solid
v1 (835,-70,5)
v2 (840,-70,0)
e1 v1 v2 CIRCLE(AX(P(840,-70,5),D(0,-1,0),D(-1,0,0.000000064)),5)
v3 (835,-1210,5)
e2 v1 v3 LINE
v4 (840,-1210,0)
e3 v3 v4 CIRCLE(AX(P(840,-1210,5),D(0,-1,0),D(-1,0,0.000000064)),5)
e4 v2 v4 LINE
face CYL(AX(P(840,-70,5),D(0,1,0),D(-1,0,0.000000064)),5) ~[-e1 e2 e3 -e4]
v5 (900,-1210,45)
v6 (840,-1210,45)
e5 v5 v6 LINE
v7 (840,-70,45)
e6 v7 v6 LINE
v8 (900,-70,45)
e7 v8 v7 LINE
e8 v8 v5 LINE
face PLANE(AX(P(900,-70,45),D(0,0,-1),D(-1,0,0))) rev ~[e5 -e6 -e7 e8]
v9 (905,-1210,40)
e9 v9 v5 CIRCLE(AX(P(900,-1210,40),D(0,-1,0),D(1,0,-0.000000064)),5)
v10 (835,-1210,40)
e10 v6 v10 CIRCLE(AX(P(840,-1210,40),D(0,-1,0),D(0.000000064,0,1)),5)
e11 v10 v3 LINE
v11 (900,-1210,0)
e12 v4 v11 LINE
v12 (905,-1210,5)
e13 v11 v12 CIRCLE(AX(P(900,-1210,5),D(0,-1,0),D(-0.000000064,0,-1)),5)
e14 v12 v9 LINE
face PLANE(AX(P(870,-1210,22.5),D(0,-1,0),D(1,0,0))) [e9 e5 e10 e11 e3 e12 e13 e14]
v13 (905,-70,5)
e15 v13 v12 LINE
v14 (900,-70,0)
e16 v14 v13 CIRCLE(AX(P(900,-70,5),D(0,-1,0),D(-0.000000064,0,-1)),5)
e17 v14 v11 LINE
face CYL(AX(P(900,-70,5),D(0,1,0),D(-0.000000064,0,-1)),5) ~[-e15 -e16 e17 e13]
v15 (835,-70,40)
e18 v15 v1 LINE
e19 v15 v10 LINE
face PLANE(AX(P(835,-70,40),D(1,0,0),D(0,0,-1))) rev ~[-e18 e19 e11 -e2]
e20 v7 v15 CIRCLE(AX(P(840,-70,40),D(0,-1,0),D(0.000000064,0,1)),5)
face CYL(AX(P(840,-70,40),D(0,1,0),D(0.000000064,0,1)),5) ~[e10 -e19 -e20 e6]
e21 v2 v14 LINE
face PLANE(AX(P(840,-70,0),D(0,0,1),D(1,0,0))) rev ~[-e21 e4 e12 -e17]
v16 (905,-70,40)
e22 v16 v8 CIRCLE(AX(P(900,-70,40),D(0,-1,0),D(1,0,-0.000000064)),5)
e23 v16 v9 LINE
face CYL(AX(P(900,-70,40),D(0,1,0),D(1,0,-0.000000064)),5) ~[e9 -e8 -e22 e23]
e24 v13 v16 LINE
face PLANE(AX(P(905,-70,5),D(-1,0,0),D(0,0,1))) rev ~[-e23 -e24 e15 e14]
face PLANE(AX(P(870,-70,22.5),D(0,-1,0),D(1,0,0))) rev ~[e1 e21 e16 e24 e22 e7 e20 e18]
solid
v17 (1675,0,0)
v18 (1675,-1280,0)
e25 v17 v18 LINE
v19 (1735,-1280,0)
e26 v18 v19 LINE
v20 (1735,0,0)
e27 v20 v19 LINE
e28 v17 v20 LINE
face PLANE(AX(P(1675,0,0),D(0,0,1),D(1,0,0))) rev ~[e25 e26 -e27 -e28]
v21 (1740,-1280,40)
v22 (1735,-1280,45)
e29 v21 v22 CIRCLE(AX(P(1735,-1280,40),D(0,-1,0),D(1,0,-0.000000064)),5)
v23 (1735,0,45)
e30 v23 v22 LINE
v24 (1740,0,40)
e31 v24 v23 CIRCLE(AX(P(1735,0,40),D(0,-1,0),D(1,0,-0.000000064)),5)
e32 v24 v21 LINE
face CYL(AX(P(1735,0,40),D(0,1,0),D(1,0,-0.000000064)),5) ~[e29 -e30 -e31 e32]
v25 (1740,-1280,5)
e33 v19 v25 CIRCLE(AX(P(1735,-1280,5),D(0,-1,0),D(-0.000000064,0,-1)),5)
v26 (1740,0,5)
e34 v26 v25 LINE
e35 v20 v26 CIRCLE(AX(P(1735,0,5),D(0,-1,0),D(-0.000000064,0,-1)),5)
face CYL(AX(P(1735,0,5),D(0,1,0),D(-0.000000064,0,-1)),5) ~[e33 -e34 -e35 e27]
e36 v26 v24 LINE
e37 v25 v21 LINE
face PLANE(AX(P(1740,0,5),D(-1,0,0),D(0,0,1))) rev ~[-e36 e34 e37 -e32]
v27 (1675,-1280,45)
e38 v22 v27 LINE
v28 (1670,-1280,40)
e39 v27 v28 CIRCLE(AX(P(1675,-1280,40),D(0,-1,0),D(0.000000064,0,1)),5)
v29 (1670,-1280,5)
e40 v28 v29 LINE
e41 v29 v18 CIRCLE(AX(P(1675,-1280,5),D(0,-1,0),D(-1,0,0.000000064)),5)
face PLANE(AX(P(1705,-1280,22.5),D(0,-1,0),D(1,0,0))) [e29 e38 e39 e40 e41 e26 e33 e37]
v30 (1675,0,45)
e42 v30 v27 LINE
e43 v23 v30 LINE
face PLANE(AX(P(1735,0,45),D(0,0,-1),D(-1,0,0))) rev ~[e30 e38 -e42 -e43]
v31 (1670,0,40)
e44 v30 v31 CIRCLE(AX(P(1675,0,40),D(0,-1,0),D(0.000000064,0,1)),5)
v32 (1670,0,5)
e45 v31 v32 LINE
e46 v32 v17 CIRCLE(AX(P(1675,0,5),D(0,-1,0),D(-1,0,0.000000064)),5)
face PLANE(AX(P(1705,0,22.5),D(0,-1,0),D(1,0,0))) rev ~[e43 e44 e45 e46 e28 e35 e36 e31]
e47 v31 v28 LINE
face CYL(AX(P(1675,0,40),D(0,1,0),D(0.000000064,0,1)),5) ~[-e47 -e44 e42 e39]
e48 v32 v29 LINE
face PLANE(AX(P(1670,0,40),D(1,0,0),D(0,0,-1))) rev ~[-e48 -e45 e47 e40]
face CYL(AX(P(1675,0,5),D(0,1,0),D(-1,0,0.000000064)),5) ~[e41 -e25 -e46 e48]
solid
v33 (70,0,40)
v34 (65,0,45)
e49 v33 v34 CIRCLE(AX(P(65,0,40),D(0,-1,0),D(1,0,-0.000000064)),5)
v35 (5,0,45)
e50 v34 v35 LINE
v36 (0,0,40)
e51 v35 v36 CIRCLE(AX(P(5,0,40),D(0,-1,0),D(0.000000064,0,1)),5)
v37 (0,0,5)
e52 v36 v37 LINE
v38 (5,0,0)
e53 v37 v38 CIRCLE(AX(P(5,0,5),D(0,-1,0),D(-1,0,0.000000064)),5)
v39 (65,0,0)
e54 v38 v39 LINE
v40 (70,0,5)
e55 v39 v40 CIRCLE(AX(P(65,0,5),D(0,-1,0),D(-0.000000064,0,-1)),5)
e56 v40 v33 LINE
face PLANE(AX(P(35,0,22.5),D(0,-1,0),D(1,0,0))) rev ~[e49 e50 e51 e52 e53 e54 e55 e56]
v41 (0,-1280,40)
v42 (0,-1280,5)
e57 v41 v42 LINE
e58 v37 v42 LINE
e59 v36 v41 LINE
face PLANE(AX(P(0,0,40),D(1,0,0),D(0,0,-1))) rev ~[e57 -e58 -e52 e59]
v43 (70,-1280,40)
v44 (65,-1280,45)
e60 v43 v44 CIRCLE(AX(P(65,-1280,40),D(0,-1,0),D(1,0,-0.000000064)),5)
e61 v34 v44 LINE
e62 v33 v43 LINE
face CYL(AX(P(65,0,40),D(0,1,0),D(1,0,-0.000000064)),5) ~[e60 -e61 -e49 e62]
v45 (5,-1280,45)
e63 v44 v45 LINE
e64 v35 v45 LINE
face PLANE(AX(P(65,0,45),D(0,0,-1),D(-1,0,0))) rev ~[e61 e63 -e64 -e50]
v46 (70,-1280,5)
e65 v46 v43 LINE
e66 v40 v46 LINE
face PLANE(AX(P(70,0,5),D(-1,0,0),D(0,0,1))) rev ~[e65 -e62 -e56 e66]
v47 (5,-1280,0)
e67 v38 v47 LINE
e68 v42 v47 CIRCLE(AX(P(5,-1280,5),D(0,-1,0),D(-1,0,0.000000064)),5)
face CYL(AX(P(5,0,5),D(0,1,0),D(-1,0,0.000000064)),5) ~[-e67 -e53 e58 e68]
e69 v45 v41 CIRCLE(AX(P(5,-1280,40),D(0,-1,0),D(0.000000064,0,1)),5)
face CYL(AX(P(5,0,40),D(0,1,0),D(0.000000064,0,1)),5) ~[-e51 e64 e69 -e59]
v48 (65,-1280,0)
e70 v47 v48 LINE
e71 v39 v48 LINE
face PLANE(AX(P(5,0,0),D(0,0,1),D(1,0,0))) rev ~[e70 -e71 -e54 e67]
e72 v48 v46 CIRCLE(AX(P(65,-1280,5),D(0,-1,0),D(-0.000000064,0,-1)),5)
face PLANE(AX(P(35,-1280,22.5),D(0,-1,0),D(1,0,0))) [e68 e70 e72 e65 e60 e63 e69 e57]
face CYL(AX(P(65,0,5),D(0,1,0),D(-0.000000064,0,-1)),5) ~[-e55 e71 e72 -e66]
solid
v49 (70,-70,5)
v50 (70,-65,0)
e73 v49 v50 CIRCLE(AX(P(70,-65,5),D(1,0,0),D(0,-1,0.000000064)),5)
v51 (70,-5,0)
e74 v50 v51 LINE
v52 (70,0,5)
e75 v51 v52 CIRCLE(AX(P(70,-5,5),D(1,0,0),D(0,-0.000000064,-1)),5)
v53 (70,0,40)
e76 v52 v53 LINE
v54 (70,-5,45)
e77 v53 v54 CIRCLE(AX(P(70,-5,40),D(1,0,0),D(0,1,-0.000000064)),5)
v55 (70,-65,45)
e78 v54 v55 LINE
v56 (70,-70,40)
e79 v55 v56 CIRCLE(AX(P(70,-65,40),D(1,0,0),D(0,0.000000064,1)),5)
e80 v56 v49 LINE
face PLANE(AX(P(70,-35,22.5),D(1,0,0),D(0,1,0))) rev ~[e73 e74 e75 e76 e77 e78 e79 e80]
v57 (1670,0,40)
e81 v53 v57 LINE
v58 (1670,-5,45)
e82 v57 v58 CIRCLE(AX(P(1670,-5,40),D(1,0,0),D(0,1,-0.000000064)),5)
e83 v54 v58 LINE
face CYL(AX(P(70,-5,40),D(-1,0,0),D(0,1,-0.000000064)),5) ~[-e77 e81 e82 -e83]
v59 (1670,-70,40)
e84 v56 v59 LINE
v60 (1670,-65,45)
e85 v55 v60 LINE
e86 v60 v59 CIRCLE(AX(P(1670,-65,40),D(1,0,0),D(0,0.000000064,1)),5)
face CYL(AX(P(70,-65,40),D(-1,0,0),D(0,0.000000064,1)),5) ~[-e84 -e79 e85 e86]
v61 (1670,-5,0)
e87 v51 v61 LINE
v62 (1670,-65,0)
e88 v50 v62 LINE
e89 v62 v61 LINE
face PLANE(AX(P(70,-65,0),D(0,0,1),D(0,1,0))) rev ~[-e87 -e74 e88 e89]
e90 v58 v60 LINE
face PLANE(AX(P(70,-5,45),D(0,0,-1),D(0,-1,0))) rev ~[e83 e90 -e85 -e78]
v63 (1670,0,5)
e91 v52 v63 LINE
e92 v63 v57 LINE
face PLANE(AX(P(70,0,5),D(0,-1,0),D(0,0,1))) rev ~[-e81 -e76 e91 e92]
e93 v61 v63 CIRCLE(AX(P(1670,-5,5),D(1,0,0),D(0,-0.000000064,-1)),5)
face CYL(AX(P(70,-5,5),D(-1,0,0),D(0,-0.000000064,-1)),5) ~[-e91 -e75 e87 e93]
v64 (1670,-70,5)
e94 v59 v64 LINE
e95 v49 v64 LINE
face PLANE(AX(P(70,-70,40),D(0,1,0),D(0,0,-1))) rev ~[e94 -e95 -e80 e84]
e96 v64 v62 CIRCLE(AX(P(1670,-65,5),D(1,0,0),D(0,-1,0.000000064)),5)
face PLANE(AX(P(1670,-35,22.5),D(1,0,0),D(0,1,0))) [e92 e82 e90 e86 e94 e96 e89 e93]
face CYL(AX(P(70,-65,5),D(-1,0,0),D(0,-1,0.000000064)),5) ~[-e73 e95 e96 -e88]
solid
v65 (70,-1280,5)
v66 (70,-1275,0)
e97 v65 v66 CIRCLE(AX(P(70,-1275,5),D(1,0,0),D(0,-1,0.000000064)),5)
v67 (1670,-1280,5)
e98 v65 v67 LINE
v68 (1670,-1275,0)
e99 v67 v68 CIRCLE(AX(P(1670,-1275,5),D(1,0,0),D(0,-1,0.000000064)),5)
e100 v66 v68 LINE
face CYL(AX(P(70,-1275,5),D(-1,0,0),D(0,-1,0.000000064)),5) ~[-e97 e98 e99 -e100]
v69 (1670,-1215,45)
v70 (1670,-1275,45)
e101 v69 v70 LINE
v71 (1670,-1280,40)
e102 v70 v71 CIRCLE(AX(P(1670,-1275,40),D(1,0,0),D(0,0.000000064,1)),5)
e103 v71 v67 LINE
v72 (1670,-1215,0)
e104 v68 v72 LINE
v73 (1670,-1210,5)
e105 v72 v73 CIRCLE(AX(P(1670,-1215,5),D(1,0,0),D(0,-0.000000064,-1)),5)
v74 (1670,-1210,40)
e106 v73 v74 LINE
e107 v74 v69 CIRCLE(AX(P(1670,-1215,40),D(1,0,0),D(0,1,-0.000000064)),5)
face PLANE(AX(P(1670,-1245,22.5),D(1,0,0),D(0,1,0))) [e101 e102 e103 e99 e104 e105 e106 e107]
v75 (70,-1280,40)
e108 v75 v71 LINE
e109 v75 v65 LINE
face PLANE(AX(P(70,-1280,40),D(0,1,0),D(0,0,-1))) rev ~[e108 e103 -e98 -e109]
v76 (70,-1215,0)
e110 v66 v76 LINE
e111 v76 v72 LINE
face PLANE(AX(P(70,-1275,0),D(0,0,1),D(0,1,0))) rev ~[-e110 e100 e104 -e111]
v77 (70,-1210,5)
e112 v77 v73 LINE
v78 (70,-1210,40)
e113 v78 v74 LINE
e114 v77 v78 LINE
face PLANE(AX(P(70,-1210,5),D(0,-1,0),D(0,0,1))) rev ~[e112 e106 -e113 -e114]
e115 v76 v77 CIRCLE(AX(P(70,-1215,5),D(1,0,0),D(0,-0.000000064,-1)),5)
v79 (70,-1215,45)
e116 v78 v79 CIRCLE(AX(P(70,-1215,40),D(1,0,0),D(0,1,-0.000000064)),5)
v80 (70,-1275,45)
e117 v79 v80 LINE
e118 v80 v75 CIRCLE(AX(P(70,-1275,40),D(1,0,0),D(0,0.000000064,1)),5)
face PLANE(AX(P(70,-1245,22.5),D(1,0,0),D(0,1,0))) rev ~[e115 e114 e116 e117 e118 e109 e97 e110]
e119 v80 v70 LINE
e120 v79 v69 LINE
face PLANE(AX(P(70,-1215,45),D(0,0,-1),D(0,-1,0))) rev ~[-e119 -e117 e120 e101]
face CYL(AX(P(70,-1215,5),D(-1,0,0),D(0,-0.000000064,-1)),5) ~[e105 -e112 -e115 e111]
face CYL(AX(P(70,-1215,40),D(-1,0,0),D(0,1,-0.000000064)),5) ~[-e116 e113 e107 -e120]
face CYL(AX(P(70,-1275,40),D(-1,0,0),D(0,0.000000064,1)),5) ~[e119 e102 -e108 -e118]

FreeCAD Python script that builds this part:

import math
import FreeCAD as App
import Part
import Sketcher

V = App.Vector
Q = App.Units.Quantity

doc = App.newDocument("Part")
body = doc.addObject("PartDesign::Body", "Body")
body.AllowCompound = True

sketch1 = body.newObject("Sketcher::SketchObject", "Sketch")
sketch1.AttachmentSupport = (doc.getObject("XZ_Plane"), [""])
sketch1.MapMode = "FlatFace"
sketch1.addGeometry(Part.ArcOfCircle(Part.Circle(V(5, 5, 0), V(0, 0, 1), 5), math.radians(180), math.radians(270)), False)
sketch1.addGeometry(Part.LineSegment(V(5, 0, 0), V(65, 0, 0)), False)
sketch1.addGeometry(Part.ArcOfCircle(Part.Circle(V(65, 5, 0), V(0, 0, 1), 5), math.radians(-90), math.radians(0)), False)
sketch1.addGeometry(Part.LineSegment(V(70, 5, 0), V(70, 40, 0)), False)
sketch1.addGeometry(Part.ArcOfCircle(Part.Circle(V(65, 40, 0), V(0, 0, 1), 5), math.radians(0), math.radians(90)), False)
sketch1.addGeometry(Part.LineSegment(V(65, 45, 0), V(5, 45, 0)), False)
sketch1.addGeometry(Part.ArcOfCircle(Part.Circle(V(5, 40, 0), V(0, 0, 1), 5), math.radians(90), math.radians(180)), False)
sketch1.addGeometry(Part.LineSegment(V(0, 40, 0), V(0, 5, 0)), False)
sketch1.addGeometry(Part.ArcOfCircle(Part.Circle(V(1675, 5, 0), V(0, 0, 1), 5), math.radians(180), math.radians(270)), False)
sketch1.addGeometry(Part.LineSegment(V(1675, 0, 0), V(1735, 0, 0)), False)
sketch1.addGeometry(Part.ArcOfCircle(Part.Circle(V(1735, 5, 0), V(0, 0, 1), 5), math.radians(-90), math.radians(0)), False)
sketch1.addGeometry(Part.LineSegment(V(1740, 5, 0), V(1740, 40, 0)), False)
sketch1.addGeometry(Part.ArcOfCircle(Part.Circle(V(1735, 40, 0), V(0, 0, 1), 5), math.radians(0), math.radians(90)), False)
sketch1.addGeometry(Part.LineSegment(V(1735, 45, 0), V(1675, 45, 0)), False)
sketch1.addGeometry(Part.ArcOfCircle(Part.Circle(V(1675, 40, 0), V(0, 0, 1), 5), math.radians(90), math.radians(180)), False)
sketch1.addGeometry(Part.LineSegment(V(1670, 40, 0), V(1670, 5, 0)), False)
sketch1.addConstraint(Sketcher.Constraint("Tangent", 0, 2, 1, 1))
sketch1.addConstraint(Sketcher.Constraint("Tangent", 1, 2, 2, 1))
sketch1.addConstraint(Sketcher.Constraint("Tangent", 2, 2, 3, 1))
sketch1.addConstraint(Sketcher.Constraint("Tangent", 3, 2, 4, 1))
sketch1.addConstraint(Sketcher.Constraint("Tangent", 4, 2, 5, 1))
sketch1.addConstraint(Sketcher.Constraint("Tangent", 5, 2, 6, 1))
sketch1.addConstraint(Sketcher.Constraint("Tangent", 6, 2, 7, 1))
sketch1.addConstraint(Sketcher.Constraint("Tangent", 7, 2, 0, 1))
sketch1.addConstraint(Sketcher.Constraint("Tangent", 8, 2, 9, 1))
sketch1.addConstraint(Sketcher.Constraint("Tangent", 9, 2, 10, 1))
sketch1.addConstraint(Sketcher.Constraint("Tangent", 10, 2, 11, 1))
sketch1.addConstraint(Sketcher.Constraint("Tangent", 11, 2, 12, 1))
sketch1.addConstraint(Sketcher.Constraint("Tangent", 12, 2, 13, 1))
sketch1.addConstraint(Sketcher.Constraint("Tangent", 13, 2, 14, 1))
sketch1.addConstraint(Sketcher.Constraint("Tangent", 14, 2, 15, 1))
sketch1.addConstraint(Sketcher.Constraint("Tangent", 15, 2, 8, 1))
sketch1.addConstraint(Sketcher.Constraint("Horizontal", 1))
sketch1.addConstraint(Sketcher.Constraint("Vertical", 3))
sketch1.addConstraint(Sketcher.Constraint("Horizontal", 5))
sketch1.addConstraint(Sketcher.Constraint("Vertical", 7))
sketch1.addConstraint(Sketcher.Constraint("Horizontal", 9))
sketch1.addConstraint(Sketcher.Constraint("Vertical", 11))
sketch1.addConstraint(Sketcher.Constraint("Horizontal", 13))
sketch1.addConstraint(Sketcher.Constraint("Vertical", 15))
sketch1.addConstraint(Sketcher.Constraint("Equal", 0, 2))
sketch1.addConstraint(Sketcher.Constraint("Equal", 2, 4))
sketch1.addConstraint(Sketcher.Constraint("Equal", 4, 6))
sketch1.addConstraint(Sketcher.Constraint("Equal", 6, 8))
sketch1.addConstraint(Sketcher.Constraint("Equal", 8, 10))
sketch1.addConstraint(Sketcher.Constraint("Equal", 10, 12))
sketch1.addConstraint(Sketcher.Constraint("Equal", 12, 14))
sketch1.addConstraint(Sketcher.Constraint("PointOnObject", 0, 2, -1))
sketch1.addConstraint(Sketcher.Constraint("PointOnObject", 6, 2, -2))
sketch1.addConstraint(Sketcher.Constraint("PointOnObject", 8, 2, -1))
sketch1.addConstraint(Sketcher.Constraint("Horizontal", 6, 3, 12, 3))
sketch1.addConstraint(Sketcher.Constraint("Equal", 5, 9))
sketch1.addConstraint(Sketcher.Constraint("Radius", 0, Q("5 mm")))
sketch1.addConstraint(Sketcher.Constraint("DistanceX", 1, 1, 1, 2, Q("60 mm")))
sketch1.addConstraint(Sketcher.Constraint("DistanceY", 3, 1, 3, 2, Q("35 mm")))
sketch1.addConstraint(Sketcher.Constraint("DistanceX", -1, 1, 8, 3, Q("1675 mm")))
pad1 = body.newObject("PartDesign::Pad", "Pad")
pad1.Profile = sketch1
pad1.Length = 1280
body2 = doc.addObject("PartDesign::Body", "Body001")
body2.AllowCompound = True

sketch2 = body2.newObject("Sketcher::SketchObject", "Sketch001")
sketch2.AttachmentSupport = (doc.getObject("YZ_Plane001"), [""])
sketch2.MapMode = "FlatFace"
sketch2.AttachmentOffset = App.Placement(V(0, 0, 70), App.Rotation())
sketch2.addGeometry(Part.LineSegment(V(-1215, 45, 0), V(-1275, 45, 0)), False)
sketch2.addGeometry(Part.ArcOfCircle(Part.Circle(V(-1275, 40, 0), V(0, 0, 1), 5), math.radians(90), math.radians(180)), False)
sketch2.addGeometry(Part.LineSegment(V(-1280, 40, 0), V(-1280, 5, 0)), False)
sketch2.addGeometry(Part.ArcOfCircle(Part.Circle(V(-1275, 5, 0), V(0, 0, 1), 5), math.radians(180), math.radians(270)), False)
sketch2.addGeometry(Part.LineSegment(V(-1275, 0, 0), V(-1215, 0, 0)), False)
sketch2.addGeometry(Part.ArcOfCircle(Part.Circle(V(-1215, 5, 0), V(0, 0, 1), 5), math.radians(-90), math.radians(0)), False)
sketch2.addGeometry(Part.LineSegment(V(-1210, 5, 0), V(-1210, 40, 0)), False)
sketch2.addGeometry(Part.ArcOfCircle(Part.Circle(V(-1215, 40, 0), V(0, 0, 1), 5), math.radians(0), math.radians(90)), False)
sketch2.addGeometry(Part.LineSegment(V(-65, 0, 0), V(-5, 0, 0)), False)
sketch2.addGeometry(Part.ArcOfCircle(Part.Circle(V(-5, 5, 0), V(0, 0, 1), 5), math.radians(-90), math.radians(0)), False)
sketch2.addGeometry(Part.LineSegment(V(0, 5, 0), V(0, 40, 0)), False)
sketch2.addGeometry(Part.ArcOfCircle(Part.Circle(V(-5, 40, 0), V(0, 0, 1), 5), math.radians(0), math.radians(90)), False)
sketch2.addGeometry(Part.LineSegment(V(-5, 45, 0), V(-65, 45, 0)), False)
sketch2.addGeometry(Part.ArcOfCircle(Part.Circle(V(-65, 40, 0), V(0, 0, 1), 5), math.radians(90), math.radians(180)), False)
sketch2.addGeometry(Part.LineSegment(V(-70, 40, 0), V(-70, 5, 0)), False)
sketch2.addGeometry(Part.ArcOfCircle(Part.Circle(V(-65, 5, 0), V(0, 0, 1), 5), math.radians(180), math.radians(270)), False)
sketch2.addConstraint(Sketcher.Constraint("Tangent", 0, 2, 1, 1))
sketch2.addConstraint(Sketcher.Constraint("Tangent", 1, 2, 2, 1))
sketch2.addConstraint(Sketcher.Constraint("Tangent", 2, 2, 3, 1))
sketch2.addConstraint(Sketcher.Constraint("Tangent", 3, 2, 4, 1))
sketch2.addConstraint(Sketcher.Constraint("Tangent", 4, 2, 5, 1))
sketch2.addConstraint(Sketcher.Constraint("Tangent", 5, 2, 6, 1))
sketch2.addConstraint(Sketcher.Constraint("Tangent", 6, 2, 7, 1))
sketch2.addConstraint(Sketcher.Constraint("Tangent", 7, 2, 0, 1))
sketch2.addConstraint(Sketcher.Constraint("Tangent", 8, 2, 9, 1))
sketch2.addConstraint(Sketcher.Constraint("Tangent", 9, 2, 10, 1))
sketch2.addConstraint(Sketcher.Constraint("Tangent", 10, 2, 11, 1))
sketch2.addConstraint(Sketcher.Constraint("Tangent", 11, 2, 12, 1))
sketch2.addConstraint(Sketcher.Constraint("Tangent", 12, 2, 13, 1))
sketch2.addConstraint(Sketcher.Constraint("Tangent", 13, 2, 14, 1))
sketch2.addConstraint(Sketcher.Constraint("Tangent", 14, 2, 15, 1))
sketch2.addConstraint(Sketcher.Constraint("Tangent", 15, 2, 8, 1))
sketch2.addConstraint(Sketcher.Constraint("Horizontal", 0))
sketch2.addConstraint(Sketcher.Constraint("Vertical", 2))
sketch2.addConstraint(Sketcher.Constraint("Horizontal", 4))
sketch2.addConstraint(Sketcher.Constraint("Vertical", 6))
sketch2.addConstraint(Sketcher.Constraint("Horizontal", 8))
sketch2.addConstraint(Sketcher.Constraint("Vertical", 10))
sketch2.addConstraint(Sketcher.Constraint("Horizontal", 12))
sketch2.addConstraint(Sketcher.Constraint("Vertical", 14))
sketch2.addConstraint(Sketcher.Constraint("Equal", 1, 3))
sketch2.addConstraint(Sketcher.Constraint("Equal", 3, 5))
sketch2.addConstraint(Sketcher.Constraint("Equal", 5, 7))
sketch2.addConstraint(Sketcher.Constraint("Equal", 7, 9))
sketch2.addConstraint(Sketcher.Constraint("Equal", 9, 11))
sketch2.addConstraint(Sketcher.Constraint("Equal", 11, 13))
sketch2.addConstraint(Sketcher.Constraint("Equal", 13, 15))
sketch2.addConstraint(Sketcher.Constraint("PointOnObject", 3, 2, -1))
sketch2.addConstraint(Sketcher.Constraint("PointOnObject", 8, 2, -1))
sketch2.addConstraint(Sketcher.Constraint("PointOnObject", 9, 2, -2))
sketch2.addConstraint(Sketcher.Constraint("Horizontal", 7, 3, 11, 3))
sketch2.addConstraint(Sketcher.Constraint("Equal", 4, 8))
sketch2.addConstraint(Sketcher.Constraint("Radius", 1, Q("5 mm")))
sketch2.addConstraint(Sketcher.Constraint("DistanceX", 0, 2, 0, 1, Q("60 mm")))
sketch2.addConstraint(Sketcher.Constraint("DistanceY", 2, 2, 2, 1, Q("35 mm")))
sketch2.addConstraint(Sketcher.Constraint("DistanceX", 1, 3, -1, 1, Q("1275 mm")))
pad2 = body2.newObject("PartDesign::Pad", "Pad001")
pad2.Profile = sketch2
pad2.Length = 1600
body3 = doc.addObject("PartDesign::Body", "Body002")

sketch3 = body3.newObject("Sketcher::SketchObject", "Sketch002")
sketch3.AttachmentSupport = (doc.getObject("XZ_Plane002"), [""])
sketch3.MapMode = "FlatFace"
sketch3.AttachmentOffset = App.Placement(V(0, 0, 70), App.Rotation())
sketch3.addGeometry(Part.ArcOfCircle(Part.Circle(V(840, 5, 0), V(0, 0, 1), 5), math.radians(180), math.radians(270)), False)
sketch3.addGeometry(Part.LineSegment(V(840, 0, 0), V(900, 0, 0)), False)
sketch3.addGeometry(Part.ArcOfCircle(Part.Circle(V(900, 5, 0), V(0, 0, 1), 5), math.radians(-90), math.radians(0)), False)
sketch3.addGeometry(Part.LineSegment(V(905, 5, 0), V(905, 40, 0)), False)
sketch3.addGeometry(Part.ArcOfCircle(Part.Circle(V(900, 40, 0), V(0, 0, 1), 5), math.radians(0), math.radians(90)), False)
sketch3.addGeometry(Part.LineSegment(V(900, 45, 0), V(840, 45, 0)), False)
sketch3.addGeometry(Part.ArcOfCircle(Part.Circle(V(840, 40, 0), V(0, 0, 1), 5), math.radians(90), math.radians(180)), False)
sketch3.addGeometry(Part.LineSegment(V(835, 40, 0), V(835, 5, 0)), False)
sketch3.addConstraint(Sketcher.Constraint("Tangent", 0, 2, 1, 1))
sketch3.addConstraint(Sketcher.Constraint("Tangent", 1, 2, 2, 1))
sketch3.addConstraint(Sketcher.Constraint("Tangent", 2, 2, 3, 1))
sketch3.addConstraint(Sketcher.Constraint("Tangent", 3, 2, 4, 1))
sketch3.addConstraint(Sketcher.Constraint("Tangent", 4, 2, 5, 1))
sketch3.addConstraint(Sketcher.Constraint("Tangent", 5, 2, 6, 1))
sketch3.addConstraint(Sketcher.Constraint("Tangent", 6, 2, 7, 1))
sketch3.addConstraint(Sketcher.Constraint("Tangent", 7, 2, 0, 1))
sketch3.addConstraint(Sketcher.Constraint("Horizontal", 1))
sketch3.addConstraint(Sketcher.Constraint("Vertical", 3))
sketch3.addConstraint(Sketcher.Constraint("Horizontal", 5))
sketch3.addConstraint(Sketcher.Constraint("Vertical", 7))
sketch3.addConstraint(Sketcher.Constraint("Equal", 0, 2))
sketch3.addConstraint(Sketcher.Constraint("Equal", 2, 4))
sketch3.addConstraint(Sketcher.Constraint("Equal", 4, 6))
sketch3.addConstraint(Sketcher.Constraint("PointOnObject", 0, 2, -1))
sketch3.addConstraint(Sketcher.Constraint("Radius", 0, Q("5 mm")))
sketch3.addConstraint(Sketcher.Constraint("DistanceX", 1, 1, 1, 2, Q("60 mm")))
sketch3.addConstraint(Sketcher.Constraint("DistanceY", 3, 1, 3, 2, Q("35 mm")))
sketch3.addConstraint(Sketcher.Constraint("DistanceX", -1, 1, 0, 3, Q("840 mm")))
pad3 = body3.newObject("PartDesign::Pad", "Pad002")
pad3.Profile = sketch3
pad3.Length = 1140

doc.recompute()
